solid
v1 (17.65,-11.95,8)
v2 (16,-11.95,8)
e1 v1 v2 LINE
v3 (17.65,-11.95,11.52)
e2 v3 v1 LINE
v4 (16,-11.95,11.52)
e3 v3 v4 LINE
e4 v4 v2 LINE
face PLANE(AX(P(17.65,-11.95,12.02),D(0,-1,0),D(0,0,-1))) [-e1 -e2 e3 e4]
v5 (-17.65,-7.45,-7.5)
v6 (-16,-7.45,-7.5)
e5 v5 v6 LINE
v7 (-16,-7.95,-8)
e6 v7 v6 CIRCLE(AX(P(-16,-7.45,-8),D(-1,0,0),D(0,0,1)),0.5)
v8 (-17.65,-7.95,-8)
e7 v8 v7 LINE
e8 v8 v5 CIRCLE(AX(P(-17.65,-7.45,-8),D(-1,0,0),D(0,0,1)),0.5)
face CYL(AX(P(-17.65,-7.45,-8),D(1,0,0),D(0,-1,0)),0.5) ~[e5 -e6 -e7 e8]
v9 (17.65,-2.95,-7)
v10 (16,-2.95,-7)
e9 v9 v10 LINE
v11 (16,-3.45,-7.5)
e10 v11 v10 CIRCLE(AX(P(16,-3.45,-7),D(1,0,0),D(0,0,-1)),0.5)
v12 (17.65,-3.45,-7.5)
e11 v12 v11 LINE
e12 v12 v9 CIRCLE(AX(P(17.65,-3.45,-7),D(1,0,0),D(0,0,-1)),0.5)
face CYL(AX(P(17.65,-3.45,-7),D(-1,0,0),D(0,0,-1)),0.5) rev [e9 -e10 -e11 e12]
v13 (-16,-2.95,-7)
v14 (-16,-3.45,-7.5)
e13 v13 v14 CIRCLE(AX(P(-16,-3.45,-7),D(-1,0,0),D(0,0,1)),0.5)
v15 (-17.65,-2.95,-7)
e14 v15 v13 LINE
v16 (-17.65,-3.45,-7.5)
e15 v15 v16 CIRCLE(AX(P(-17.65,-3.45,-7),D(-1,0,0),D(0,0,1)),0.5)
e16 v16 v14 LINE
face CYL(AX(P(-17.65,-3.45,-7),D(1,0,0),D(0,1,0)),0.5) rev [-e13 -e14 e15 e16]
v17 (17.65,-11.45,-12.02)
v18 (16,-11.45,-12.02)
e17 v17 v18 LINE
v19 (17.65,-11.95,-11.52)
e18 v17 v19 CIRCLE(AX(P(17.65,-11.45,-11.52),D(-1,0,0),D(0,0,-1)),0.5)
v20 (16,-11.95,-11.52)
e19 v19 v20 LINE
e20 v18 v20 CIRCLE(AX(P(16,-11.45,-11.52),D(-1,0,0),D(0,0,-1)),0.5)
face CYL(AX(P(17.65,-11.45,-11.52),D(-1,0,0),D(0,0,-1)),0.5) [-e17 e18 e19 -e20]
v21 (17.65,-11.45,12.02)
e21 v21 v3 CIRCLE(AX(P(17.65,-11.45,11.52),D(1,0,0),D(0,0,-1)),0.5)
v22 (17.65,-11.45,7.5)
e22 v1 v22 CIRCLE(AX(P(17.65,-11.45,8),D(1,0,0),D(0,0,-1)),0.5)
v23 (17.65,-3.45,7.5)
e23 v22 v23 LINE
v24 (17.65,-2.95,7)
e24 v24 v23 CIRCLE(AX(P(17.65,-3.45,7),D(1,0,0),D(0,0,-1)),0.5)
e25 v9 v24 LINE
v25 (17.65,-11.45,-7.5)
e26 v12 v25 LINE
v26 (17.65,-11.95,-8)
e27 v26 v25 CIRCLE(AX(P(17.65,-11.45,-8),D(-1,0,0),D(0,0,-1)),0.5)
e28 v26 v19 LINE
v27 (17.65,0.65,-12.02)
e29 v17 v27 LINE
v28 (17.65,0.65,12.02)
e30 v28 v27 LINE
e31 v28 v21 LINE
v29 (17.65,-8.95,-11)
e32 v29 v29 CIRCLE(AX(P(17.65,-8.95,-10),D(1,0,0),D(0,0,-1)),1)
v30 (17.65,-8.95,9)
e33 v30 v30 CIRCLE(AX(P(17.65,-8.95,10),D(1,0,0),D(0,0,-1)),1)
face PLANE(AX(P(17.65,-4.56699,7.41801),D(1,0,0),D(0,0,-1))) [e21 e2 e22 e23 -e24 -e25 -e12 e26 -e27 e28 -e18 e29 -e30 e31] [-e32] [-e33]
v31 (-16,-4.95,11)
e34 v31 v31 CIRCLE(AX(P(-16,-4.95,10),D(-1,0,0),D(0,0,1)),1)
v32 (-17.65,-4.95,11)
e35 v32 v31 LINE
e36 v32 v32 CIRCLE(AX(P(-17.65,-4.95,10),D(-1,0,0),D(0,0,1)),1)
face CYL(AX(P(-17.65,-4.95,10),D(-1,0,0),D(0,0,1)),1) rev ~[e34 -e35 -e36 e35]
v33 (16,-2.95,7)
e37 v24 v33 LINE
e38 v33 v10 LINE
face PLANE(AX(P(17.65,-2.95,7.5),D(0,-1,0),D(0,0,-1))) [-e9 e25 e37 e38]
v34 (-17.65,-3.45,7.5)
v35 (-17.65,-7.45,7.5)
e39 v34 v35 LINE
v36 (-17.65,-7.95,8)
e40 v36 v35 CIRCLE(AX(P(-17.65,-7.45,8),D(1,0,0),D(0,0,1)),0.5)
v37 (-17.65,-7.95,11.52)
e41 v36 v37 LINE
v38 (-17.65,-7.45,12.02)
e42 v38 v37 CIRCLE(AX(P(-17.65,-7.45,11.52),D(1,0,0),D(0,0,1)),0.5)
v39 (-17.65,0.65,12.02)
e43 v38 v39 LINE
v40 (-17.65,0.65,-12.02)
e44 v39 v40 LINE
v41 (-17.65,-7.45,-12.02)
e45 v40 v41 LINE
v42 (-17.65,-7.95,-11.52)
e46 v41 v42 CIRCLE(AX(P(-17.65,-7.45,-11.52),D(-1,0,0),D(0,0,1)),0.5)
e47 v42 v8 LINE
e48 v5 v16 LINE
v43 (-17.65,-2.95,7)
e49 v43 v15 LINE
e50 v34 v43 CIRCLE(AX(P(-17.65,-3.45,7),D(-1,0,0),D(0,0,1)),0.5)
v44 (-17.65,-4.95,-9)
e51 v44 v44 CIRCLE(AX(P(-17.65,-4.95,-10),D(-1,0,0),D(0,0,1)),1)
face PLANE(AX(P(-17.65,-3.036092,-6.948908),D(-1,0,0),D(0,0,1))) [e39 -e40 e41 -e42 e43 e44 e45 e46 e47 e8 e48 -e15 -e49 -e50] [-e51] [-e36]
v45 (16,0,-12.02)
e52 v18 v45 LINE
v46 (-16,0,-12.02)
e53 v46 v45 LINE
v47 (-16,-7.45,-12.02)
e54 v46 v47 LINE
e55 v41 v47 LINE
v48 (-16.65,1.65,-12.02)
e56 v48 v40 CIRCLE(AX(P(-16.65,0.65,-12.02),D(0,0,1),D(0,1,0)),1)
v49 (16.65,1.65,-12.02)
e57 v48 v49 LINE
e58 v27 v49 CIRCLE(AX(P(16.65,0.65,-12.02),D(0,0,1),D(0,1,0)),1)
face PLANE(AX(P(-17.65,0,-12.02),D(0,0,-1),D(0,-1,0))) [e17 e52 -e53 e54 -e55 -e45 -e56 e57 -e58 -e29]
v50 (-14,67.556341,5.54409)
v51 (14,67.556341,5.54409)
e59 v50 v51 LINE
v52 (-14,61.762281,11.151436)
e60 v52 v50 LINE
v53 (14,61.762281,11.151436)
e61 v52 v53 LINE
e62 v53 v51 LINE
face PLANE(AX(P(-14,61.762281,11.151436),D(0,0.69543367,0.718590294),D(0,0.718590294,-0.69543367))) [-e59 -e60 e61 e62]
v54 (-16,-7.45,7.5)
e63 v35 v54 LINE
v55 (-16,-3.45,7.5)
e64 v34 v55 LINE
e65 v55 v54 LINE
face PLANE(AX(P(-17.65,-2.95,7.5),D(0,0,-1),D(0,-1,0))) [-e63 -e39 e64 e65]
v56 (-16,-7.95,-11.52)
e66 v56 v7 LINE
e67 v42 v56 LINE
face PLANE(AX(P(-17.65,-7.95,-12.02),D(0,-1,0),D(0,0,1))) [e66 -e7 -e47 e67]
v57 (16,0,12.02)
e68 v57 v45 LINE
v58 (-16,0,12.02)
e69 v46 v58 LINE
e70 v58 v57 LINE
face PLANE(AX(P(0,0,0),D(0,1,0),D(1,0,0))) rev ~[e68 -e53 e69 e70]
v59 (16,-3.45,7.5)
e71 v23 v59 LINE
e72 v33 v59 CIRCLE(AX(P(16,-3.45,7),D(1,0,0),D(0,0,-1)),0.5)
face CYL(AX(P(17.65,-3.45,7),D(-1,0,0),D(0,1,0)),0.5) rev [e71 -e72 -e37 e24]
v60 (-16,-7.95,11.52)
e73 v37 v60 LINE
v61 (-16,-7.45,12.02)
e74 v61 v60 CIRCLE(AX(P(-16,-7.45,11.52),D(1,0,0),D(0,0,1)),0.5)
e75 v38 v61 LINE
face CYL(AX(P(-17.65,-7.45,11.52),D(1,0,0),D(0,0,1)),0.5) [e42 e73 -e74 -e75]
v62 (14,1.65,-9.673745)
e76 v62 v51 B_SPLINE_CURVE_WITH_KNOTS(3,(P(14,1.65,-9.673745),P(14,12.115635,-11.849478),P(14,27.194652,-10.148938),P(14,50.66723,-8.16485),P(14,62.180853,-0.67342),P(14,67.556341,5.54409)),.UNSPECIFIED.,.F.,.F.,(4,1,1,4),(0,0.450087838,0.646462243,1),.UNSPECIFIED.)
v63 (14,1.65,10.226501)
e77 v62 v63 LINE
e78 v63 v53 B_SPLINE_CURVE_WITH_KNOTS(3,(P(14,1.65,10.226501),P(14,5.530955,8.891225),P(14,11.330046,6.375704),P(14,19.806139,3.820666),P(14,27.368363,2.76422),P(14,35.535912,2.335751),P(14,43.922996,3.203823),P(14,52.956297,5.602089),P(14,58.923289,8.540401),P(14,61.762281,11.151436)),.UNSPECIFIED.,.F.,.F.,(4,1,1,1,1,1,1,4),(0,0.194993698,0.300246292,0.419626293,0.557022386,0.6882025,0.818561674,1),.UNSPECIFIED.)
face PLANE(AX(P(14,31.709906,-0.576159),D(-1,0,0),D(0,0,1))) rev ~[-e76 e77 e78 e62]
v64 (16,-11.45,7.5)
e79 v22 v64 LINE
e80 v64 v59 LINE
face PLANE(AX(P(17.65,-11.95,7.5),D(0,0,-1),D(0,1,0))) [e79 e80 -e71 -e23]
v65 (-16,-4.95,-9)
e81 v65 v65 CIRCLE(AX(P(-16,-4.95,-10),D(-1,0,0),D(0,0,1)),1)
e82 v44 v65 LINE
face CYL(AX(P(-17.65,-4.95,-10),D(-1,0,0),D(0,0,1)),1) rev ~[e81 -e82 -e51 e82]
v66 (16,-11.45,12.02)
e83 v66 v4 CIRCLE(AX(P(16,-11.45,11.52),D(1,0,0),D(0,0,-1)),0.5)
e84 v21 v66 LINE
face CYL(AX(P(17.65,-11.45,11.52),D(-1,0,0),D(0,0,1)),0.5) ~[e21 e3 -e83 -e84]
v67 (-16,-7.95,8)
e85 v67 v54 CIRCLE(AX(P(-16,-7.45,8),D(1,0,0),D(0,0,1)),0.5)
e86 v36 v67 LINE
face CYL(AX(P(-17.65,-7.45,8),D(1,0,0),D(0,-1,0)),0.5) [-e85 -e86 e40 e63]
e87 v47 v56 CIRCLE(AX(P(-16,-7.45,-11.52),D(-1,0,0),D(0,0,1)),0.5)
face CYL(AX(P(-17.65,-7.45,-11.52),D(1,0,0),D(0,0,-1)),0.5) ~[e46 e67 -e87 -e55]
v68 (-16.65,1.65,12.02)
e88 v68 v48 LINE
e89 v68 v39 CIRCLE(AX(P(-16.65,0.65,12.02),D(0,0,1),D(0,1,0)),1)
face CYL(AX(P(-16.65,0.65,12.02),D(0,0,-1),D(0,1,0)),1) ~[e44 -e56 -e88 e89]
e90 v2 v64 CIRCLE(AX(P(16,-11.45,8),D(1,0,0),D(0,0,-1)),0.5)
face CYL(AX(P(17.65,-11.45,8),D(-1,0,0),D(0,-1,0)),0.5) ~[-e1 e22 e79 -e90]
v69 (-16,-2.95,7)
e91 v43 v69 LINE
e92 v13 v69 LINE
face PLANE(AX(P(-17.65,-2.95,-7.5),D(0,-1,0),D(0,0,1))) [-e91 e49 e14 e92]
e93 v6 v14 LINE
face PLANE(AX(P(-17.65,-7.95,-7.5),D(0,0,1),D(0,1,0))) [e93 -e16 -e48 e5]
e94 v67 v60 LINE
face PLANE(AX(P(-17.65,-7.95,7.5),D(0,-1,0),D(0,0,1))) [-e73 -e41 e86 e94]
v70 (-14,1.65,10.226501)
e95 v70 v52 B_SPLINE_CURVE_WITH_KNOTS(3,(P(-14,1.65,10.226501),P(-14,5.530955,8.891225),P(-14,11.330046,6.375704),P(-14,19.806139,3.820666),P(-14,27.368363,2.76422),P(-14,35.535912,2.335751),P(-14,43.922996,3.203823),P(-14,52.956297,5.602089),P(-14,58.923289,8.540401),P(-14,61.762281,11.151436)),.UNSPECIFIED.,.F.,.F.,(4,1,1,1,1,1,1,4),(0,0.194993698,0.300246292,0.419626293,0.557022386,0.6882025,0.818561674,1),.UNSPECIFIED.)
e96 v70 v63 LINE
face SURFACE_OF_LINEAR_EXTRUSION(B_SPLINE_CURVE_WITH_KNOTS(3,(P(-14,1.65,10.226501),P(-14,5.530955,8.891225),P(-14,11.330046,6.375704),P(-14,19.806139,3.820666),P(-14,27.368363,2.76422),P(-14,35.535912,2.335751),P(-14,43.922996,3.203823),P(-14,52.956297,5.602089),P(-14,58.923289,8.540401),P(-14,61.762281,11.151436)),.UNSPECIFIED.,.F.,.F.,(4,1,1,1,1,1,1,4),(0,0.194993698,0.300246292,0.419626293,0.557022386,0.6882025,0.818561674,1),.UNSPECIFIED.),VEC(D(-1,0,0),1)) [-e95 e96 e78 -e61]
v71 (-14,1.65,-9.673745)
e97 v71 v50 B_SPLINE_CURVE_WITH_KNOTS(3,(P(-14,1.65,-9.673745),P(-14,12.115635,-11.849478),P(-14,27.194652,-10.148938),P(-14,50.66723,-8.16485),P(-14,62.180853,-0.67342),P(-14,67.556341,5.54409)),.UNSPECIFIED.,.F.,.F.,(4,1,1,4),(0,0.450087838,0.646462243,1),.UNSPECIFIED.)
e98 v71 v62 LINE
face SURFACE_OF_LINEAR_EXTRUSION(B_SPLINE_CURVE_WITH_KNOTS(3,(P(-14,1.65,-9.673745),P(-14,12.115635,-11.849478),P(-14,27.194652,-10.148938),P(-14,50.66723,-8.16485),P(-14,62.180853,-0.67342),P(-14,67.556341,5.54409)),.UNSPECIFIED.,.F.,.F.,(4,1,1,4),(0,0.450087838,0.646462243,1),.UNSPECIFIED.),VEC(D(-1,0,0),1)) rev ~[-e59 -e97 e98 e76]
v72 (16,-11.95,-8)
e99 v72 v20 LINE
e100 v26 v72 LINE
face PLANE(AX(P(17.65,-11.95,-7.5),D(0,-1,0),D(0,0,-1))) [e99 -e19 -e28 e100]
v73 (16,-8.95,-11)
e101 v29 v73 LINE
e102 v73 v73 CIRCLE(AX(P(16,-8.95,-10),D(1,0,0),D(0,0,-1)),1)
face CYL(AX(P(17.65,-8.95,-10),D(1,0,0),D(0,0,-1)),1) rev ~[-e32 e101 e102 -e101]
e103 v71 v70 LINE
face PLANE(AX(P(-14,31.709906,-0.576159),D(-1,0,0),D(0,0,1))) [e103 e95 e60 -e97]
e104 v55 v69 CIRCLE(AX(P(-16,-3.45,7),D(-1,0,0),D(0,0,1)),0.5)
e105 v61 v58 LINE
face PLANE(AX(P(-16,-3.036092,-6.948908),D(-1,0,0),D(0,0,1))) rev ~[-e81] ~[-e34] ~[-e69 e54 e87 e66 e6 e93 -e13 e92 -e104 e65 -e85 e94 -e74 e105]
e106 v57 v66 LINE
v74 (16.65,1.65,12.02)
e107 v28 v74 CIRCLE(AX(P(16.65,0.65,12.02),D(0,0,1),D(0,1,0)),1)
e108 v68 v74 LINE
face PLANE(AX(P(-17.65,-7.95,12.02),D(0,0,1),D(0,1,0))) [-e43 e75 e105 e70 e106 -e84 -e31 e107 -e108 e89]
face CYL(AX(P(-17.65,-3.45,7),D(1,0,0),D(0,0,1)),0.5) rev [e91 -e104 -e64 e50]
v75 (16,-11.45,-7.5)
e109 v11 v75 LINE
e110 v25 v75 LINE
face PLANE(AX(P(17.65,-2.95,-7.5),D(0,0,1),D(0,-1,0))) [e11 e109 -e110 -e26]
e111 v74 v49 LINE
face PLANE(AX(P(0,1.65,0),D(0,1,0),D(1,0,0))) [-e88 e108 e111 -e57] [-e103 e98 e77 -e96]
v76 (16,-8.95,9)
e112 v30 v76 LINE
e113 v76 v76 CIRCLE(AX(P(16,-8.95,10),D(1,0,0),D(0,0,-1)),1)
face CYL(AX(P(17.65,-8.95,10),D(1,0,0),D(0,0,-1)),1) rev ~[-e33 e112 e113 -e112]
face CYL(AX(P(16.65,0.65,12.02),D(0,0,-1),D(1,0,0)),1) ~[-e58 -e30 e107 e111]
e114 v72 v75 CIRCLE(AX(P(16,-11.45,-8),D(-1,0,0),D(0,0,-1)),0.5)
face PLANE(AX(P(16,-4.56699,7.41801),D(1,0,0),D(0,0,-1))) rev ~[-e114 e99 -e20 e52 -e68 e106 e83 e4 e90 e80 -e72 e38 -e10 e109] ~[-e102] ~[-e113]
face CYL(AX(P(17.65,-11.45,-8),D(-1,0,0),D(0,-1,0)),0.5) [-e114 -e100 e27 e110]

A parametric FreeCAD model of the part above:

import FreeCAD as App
import Part
import Sketcher

V = App.Vector
Q = App.Units.Quantity


def edges_at(feature, points):
    """Names of the edges that pass closest to the given points."""
    edges = feature.Shape.Edges
    near = lambda p: min(range(len(edges)), key=lambda i: edges[i].distToShape(Part.Vertex(*p))[0])
    return sorted({f"Edge{near(p) + 1}" for p in points})


def add_polygon(sketch, points):
    """Adds a closed chain of lines whose ends are joined by coincident constraints."""
    first, n = sketch.GeometryCount, len(points)
    for a, b in zip(points, points[1:] + points[:1]):
        sketch.addGeometry(Part.LineSegment(App.Vector(*a, 0), App.Vector(*b, 0)), False)
    for i in range(n):
        sketch.addConstraint(Sketcher.Constraint("Coincident", first + i, 2, first + (i + 1) % n, 1))

doc = App.newDocument("Part")
body = doc.addObject("PartDesign::Body", "Body")

sketch1 = body.newObject("Sketcher::SketchObject", "Sketch")
sketch1.AttachmentSupport = (doc.getObject("XZ_Plane"), [""])
sketch1.MapMode = "FlatFace"
add_polygon(sketch1, [(-18, -12), (-18, 12), (18, 12), (18, -12)])
sketch1.addConstraint(Sketcher.Constraint("Vertical", 0))
sketch1.addConstraint(Sketcher.Constraint("Horizontal", 1))
sketch1.addConstraint(Sketcher.Constraint("Vertical", 2))
sketch1.addConstraint(Sketcher.Constraint("Horizontal", 3))
sketch1.addConstraint(Sketcher.Constraint("Symmetric", 0, 2, 2, 2, -1, 1))
sketch1.addConstraint(Sketcher.Constraint("DistanceX", 1, 1, 1, 2, Q("35.3 mm")))
sketch1.addConstraint(Sketcher.Constraint("DistanceY", 0, 1, 0, 2, Q("24.04 mm")))
pad1 = body.newObject("PartDesign::Pad", "Pad")
pad1.Profile = sketch1
pad1.Length = 1.65
pad1.Reversed = True

sketch2 = body.newObject("Sketcher::SketchObject", "Sketch001")
sketch2.AttachmentSupport = (doc.getObject("YZ_Plane"), [""])
sketch2.MapMode = "FlatFace"
sketch2.AttachmentOffset = App.Placement(V(0, 0, 17.65), App.Rotation())
add_polygon(sketch2, [(-3, 7.5), (-3, -7.5), (-11.9, -7.5), (-11.9, -12), (0, -12), (0, 12), (-11.9, 12), (-11.9, 7.5)])
sketch2.addGeometry(Part.Circle(V(-8.9, 10, 0), V(0, 0, 1), 1), False)
sketch2.addGeometry(Part.Circle(V(-8.9, -10, 0), V(0, 0, 1), 1), False)
sketch2.addConstraint(Sketcher.Constraint("Vertical", 0))
sketch2.addConstraint(Sketcher.Constraint("Horizontal", 1))
sketch2.addConstraint(Sketcher.Constraint("Vertical", 2))
sketch2.addConstraint(Sketcher.Constraint("Horizontal", 3))
sketch2.addConstraint(Sketcher.Constraint("Vertical", 4))
sketch2.addConstraint(Sketcher.Constraint("Horizontal", 5))
sketch2.addConstraint(Sketcher.Constraint("Vertical", 6))
sketch2.addConstraint(Sketcher.Constraint("Horizontal", 7))
sketch2.addConstraint(Sketcher.Constraint("Equal", 8, 9))
sketch2.addConstraint(Sketcher.Constraint("Symmetric", 3, 2, 4, 2, -1, 1))
sketch2.addConstraint(Sketcher.Constraint("Symmetric", 8, 3, 9, 3, -1))
sketch2.addConstraint(Sketcher.Constraint("Symmetric", 1, 2, 6, 2, -1))
sketch2.addConstraint(Sketcher.Constraint("Diameter", 8, Q("2 mm")))
sketch2.addConstraint(Sketcher.Constraint("DistanceX", 1, 2, 1, 1, Q("9 mm")))
sketch2.addConstraint(Sketcher.Constraint("DistanceY", 0, 2, 0, 1, Q("15 mm")))
sketch2.addConstraint(Sketcher.Constraint("DistanceY", -1, 1, 8, 3, Q("10 mm")))
sketch2.addConstraint(Sketcher.Constraint("DistanceX", 9, 3, 0, 2, Q("6 mm")))
sketch2.addConstraint(Sketcher.Constraint("DistanceX", 3, 1, 3, 2, Q("11.95 mm")))
sketch2.addConstraint(Sketcher.Constraint("DistanceY", 2, 2, 2, 1, Q("4.52 mm")))
pad2 = body.newObject("PartDesign::Pad", "Pad001")
pad2.Profile = sketch2
pad2.Length = 1.65
pad2.Reversed = True

sketch3 = body.newObject("Sketcher::SketchObject", "Sketch002")
sketch3.AttachmentSupport = (doc.getObject("YZ_Plane"), [""])
sketch3.MapMode = "FlatFace"
sketch3.AttachmentOffset = App.Placement(V(0, 0, -17.65), App.Rotation())
add_polygon(sketch3, [(-3, -7.5), (-3, 7.5), (-8, 7.5), (-8, 12), (0, 12), (0, -12), (-8, -12), (-8, -7.5)])
sketch3.addGeometry(Part.Circle(V(-5, -10, 0), V(0, 0, 1), 1), False)
sketch3.addGeometry(Part.Circle(V(-5, 10, 0), V(0, 0, 1), 1), False)
sketch3.addConstraint(Sketcher.Constraint("Vertical", 0))
sketch3.addConstraint(Sketcher.Constraint("Horizontal", 1))
sketch3.addConstraint(Sketcher.Constraint("Vertical", 2))
sketch3.addConstraint(Sketcher.Constraint("Horizontal", 3))
sketch3.addConstraint(Sketcher.Constraint("Vertical", 4))
sketch3.addConstraint(Sketcher.Constraint("Horizontal", 5))
sketch3.addConstraint(Sketcher.Constraint("Vertical", 6))
sketch3.addConstraint(Sketcher.Constraint("Horizontal", 7))
sketch3.addConstraint(Sketcher.Constraint("Equal", 8, 9))
sketch3.addConstraint(Sketcher.Constraint("Symmetric", 3, 2, 4, 2, -1, 1))
sketch3.addConstraint(Sketcher.Constraint("Symmetric", 8, 3, 9, 3, -1))
sketch3.addConstraint(Sketcher.Constraint("Symmetric", 1, 2, 6, 2, -1))
sketch3.addConstraint(Sketcher.Constraint("Diameter", 8, Q("2 mm")))
sketch3.addConstraint(Sketcher.Constraint("DistanceX", 1, 2, 1, 1, Q("5 mm")))
sketch3.addConstraint(Sketcher.Constraint("DistanceY", 0, 1, 0, 2, Q("15 mm")))
sketch3.addConstraint(Sketcher.Constraint("DistanceY", 8, 3, -1, 1, Q("10 mm")))
sketch3.addConstraint(Sketcher.Constraint("DistanceX", 9, 3, 0, 2, Q("2 mm")))
sketch3.addConstraint(Sketcher.Constraint("DistanceX", 3, 1, 3, 2, Q("7.95 mm")))
sketch3.addConstraint(Sketcher.Constraint("DistanceY", 2, 1, 2, 2, Q("4.52 mm")))
pad3 = body.newObject("PartDesign::Pad", "Pad002")
pad3.Profile = sketch3
pad3.Length = 1.65
doc.recompute()

fillet = body.newObject("PartDesign::Fillet", "Fillet")
fillet.Base = (pad3, edges_at(pad3, [(17.65, 1.65, 0)]))
fillet.Radius = 1
doc.recompute()

fillet2 = body.newObject("PartDesign::Fillet", "Fillet001")
fillet2.Base = (fillet, edges_at(fillet, [(-17.65, 1.65, 0)]))
fillet2.Radius = 1
doc.recompute()

fillet3 = body.newObject("PartDesign::Fillet", "Fillet002")
fillet3.Base = (fillet2, edges_at(fillet2, [
    (16.825, -2.95, -7.5),
    (16.825, -2.95, 7.5),
    (16.825, -11.95, 7.5),
    (16.825, -11.95, 12.02),
    (16.825, -11.95, -12.02),
    (16.825, -11.95, -7.5),
    (-16.825, -2.95, 7.5),
    (-16.825, -2.95, -7.5),
    (-16.825, -7.95, -7.5),
    (-16.825, -7.95, -12.02),
    (-16.825, -7.95, 12.02),
    (-16.825, -7.95, 7.5),
]))
fillet3.Radius = 0.5

sketch4 = body.newObject("Sketcher::SketchObject", "Sketch003")
sketch4.AttachmentSupport = (doc.getObject("YZ_Plane"), [""])
sketch4.MapMode = "FlatFace"
sketch4.addGeometry(Part.LineSegment(V(1.65, 10.226501, 0), V(1.65, -9.673745, 0)), False)
sketch4.addGeometry(Part.BSplineCurve([V(1.65, -9.673745, 0), V(12.115635, -11.849478, 0), V(27.194652, -10.148938, 0), V(50.66723, -8.16485, 0), V(62.180853, -0.67342, 0), V(67.556341, 5.54409, 0)], [4, 1, 1, 4], [0, 0.450087838, 0.646462243, 1], False, 3, [1, 1, 1, 1, 1, 1], False), False)
sketch4.addGeometry(Part.LineSegment(V(67.556341, 5.54409, 0), V(61.762281, 11.151436, 0)), False)
sketch4.addGeometry(Part.BSplineCurve([V(1.65, 10.226501, 0), V(5.530955, 8.891225, 0), V(11.330046, 6.375704, 0), V(19.806139, 3.820666, 0), V(27.368363, 2.76422, 0), V(35.535912, 2.335751, 0), V(43.922996, 3.203823, 0), V(52.956297, 5.602089, 0), V(58.923289, 8.540401, 0), V(61.762281, 11.151436, 0)], [4, 1, 1, 1, 1, 1, 1, 4], [0, 0.194993698, 0.300246292, 0.419626293, 0.557022386, 0.6882025, 0.818561674, 1], False, 3, [1, 1, 1, 1, 1, 1, 1, 1, 1, 1], False), False)
sketch4.addConstraint(Sketcher.Constraint("Block", 1))
sketch4.addConstraint(Sketcher.Constraint("Block", 3))
sketch4.addConstraint(Sketcher.Constraint("Coincident", 0, 2, 1, 1))
sketch4.addConstraint(Sketcher.Constraint("Coincident", 1, 2, 2, 1))
sketch4.addConstraint(Sketcher.Constraint("Coincident", 2, 2, 3, 2))
sketch4.addConstraint(Sketcher.Constraint("Coincident", 3, 1, 0, 1))
pad4 = body.newObject("PartDesign::Pad", "Pad003")
pad4.Profile = sketch4
pad4.Type = "TwoLengths"
pad4.Length = 14
pad4.Length2 = 14

doc.recompute()
